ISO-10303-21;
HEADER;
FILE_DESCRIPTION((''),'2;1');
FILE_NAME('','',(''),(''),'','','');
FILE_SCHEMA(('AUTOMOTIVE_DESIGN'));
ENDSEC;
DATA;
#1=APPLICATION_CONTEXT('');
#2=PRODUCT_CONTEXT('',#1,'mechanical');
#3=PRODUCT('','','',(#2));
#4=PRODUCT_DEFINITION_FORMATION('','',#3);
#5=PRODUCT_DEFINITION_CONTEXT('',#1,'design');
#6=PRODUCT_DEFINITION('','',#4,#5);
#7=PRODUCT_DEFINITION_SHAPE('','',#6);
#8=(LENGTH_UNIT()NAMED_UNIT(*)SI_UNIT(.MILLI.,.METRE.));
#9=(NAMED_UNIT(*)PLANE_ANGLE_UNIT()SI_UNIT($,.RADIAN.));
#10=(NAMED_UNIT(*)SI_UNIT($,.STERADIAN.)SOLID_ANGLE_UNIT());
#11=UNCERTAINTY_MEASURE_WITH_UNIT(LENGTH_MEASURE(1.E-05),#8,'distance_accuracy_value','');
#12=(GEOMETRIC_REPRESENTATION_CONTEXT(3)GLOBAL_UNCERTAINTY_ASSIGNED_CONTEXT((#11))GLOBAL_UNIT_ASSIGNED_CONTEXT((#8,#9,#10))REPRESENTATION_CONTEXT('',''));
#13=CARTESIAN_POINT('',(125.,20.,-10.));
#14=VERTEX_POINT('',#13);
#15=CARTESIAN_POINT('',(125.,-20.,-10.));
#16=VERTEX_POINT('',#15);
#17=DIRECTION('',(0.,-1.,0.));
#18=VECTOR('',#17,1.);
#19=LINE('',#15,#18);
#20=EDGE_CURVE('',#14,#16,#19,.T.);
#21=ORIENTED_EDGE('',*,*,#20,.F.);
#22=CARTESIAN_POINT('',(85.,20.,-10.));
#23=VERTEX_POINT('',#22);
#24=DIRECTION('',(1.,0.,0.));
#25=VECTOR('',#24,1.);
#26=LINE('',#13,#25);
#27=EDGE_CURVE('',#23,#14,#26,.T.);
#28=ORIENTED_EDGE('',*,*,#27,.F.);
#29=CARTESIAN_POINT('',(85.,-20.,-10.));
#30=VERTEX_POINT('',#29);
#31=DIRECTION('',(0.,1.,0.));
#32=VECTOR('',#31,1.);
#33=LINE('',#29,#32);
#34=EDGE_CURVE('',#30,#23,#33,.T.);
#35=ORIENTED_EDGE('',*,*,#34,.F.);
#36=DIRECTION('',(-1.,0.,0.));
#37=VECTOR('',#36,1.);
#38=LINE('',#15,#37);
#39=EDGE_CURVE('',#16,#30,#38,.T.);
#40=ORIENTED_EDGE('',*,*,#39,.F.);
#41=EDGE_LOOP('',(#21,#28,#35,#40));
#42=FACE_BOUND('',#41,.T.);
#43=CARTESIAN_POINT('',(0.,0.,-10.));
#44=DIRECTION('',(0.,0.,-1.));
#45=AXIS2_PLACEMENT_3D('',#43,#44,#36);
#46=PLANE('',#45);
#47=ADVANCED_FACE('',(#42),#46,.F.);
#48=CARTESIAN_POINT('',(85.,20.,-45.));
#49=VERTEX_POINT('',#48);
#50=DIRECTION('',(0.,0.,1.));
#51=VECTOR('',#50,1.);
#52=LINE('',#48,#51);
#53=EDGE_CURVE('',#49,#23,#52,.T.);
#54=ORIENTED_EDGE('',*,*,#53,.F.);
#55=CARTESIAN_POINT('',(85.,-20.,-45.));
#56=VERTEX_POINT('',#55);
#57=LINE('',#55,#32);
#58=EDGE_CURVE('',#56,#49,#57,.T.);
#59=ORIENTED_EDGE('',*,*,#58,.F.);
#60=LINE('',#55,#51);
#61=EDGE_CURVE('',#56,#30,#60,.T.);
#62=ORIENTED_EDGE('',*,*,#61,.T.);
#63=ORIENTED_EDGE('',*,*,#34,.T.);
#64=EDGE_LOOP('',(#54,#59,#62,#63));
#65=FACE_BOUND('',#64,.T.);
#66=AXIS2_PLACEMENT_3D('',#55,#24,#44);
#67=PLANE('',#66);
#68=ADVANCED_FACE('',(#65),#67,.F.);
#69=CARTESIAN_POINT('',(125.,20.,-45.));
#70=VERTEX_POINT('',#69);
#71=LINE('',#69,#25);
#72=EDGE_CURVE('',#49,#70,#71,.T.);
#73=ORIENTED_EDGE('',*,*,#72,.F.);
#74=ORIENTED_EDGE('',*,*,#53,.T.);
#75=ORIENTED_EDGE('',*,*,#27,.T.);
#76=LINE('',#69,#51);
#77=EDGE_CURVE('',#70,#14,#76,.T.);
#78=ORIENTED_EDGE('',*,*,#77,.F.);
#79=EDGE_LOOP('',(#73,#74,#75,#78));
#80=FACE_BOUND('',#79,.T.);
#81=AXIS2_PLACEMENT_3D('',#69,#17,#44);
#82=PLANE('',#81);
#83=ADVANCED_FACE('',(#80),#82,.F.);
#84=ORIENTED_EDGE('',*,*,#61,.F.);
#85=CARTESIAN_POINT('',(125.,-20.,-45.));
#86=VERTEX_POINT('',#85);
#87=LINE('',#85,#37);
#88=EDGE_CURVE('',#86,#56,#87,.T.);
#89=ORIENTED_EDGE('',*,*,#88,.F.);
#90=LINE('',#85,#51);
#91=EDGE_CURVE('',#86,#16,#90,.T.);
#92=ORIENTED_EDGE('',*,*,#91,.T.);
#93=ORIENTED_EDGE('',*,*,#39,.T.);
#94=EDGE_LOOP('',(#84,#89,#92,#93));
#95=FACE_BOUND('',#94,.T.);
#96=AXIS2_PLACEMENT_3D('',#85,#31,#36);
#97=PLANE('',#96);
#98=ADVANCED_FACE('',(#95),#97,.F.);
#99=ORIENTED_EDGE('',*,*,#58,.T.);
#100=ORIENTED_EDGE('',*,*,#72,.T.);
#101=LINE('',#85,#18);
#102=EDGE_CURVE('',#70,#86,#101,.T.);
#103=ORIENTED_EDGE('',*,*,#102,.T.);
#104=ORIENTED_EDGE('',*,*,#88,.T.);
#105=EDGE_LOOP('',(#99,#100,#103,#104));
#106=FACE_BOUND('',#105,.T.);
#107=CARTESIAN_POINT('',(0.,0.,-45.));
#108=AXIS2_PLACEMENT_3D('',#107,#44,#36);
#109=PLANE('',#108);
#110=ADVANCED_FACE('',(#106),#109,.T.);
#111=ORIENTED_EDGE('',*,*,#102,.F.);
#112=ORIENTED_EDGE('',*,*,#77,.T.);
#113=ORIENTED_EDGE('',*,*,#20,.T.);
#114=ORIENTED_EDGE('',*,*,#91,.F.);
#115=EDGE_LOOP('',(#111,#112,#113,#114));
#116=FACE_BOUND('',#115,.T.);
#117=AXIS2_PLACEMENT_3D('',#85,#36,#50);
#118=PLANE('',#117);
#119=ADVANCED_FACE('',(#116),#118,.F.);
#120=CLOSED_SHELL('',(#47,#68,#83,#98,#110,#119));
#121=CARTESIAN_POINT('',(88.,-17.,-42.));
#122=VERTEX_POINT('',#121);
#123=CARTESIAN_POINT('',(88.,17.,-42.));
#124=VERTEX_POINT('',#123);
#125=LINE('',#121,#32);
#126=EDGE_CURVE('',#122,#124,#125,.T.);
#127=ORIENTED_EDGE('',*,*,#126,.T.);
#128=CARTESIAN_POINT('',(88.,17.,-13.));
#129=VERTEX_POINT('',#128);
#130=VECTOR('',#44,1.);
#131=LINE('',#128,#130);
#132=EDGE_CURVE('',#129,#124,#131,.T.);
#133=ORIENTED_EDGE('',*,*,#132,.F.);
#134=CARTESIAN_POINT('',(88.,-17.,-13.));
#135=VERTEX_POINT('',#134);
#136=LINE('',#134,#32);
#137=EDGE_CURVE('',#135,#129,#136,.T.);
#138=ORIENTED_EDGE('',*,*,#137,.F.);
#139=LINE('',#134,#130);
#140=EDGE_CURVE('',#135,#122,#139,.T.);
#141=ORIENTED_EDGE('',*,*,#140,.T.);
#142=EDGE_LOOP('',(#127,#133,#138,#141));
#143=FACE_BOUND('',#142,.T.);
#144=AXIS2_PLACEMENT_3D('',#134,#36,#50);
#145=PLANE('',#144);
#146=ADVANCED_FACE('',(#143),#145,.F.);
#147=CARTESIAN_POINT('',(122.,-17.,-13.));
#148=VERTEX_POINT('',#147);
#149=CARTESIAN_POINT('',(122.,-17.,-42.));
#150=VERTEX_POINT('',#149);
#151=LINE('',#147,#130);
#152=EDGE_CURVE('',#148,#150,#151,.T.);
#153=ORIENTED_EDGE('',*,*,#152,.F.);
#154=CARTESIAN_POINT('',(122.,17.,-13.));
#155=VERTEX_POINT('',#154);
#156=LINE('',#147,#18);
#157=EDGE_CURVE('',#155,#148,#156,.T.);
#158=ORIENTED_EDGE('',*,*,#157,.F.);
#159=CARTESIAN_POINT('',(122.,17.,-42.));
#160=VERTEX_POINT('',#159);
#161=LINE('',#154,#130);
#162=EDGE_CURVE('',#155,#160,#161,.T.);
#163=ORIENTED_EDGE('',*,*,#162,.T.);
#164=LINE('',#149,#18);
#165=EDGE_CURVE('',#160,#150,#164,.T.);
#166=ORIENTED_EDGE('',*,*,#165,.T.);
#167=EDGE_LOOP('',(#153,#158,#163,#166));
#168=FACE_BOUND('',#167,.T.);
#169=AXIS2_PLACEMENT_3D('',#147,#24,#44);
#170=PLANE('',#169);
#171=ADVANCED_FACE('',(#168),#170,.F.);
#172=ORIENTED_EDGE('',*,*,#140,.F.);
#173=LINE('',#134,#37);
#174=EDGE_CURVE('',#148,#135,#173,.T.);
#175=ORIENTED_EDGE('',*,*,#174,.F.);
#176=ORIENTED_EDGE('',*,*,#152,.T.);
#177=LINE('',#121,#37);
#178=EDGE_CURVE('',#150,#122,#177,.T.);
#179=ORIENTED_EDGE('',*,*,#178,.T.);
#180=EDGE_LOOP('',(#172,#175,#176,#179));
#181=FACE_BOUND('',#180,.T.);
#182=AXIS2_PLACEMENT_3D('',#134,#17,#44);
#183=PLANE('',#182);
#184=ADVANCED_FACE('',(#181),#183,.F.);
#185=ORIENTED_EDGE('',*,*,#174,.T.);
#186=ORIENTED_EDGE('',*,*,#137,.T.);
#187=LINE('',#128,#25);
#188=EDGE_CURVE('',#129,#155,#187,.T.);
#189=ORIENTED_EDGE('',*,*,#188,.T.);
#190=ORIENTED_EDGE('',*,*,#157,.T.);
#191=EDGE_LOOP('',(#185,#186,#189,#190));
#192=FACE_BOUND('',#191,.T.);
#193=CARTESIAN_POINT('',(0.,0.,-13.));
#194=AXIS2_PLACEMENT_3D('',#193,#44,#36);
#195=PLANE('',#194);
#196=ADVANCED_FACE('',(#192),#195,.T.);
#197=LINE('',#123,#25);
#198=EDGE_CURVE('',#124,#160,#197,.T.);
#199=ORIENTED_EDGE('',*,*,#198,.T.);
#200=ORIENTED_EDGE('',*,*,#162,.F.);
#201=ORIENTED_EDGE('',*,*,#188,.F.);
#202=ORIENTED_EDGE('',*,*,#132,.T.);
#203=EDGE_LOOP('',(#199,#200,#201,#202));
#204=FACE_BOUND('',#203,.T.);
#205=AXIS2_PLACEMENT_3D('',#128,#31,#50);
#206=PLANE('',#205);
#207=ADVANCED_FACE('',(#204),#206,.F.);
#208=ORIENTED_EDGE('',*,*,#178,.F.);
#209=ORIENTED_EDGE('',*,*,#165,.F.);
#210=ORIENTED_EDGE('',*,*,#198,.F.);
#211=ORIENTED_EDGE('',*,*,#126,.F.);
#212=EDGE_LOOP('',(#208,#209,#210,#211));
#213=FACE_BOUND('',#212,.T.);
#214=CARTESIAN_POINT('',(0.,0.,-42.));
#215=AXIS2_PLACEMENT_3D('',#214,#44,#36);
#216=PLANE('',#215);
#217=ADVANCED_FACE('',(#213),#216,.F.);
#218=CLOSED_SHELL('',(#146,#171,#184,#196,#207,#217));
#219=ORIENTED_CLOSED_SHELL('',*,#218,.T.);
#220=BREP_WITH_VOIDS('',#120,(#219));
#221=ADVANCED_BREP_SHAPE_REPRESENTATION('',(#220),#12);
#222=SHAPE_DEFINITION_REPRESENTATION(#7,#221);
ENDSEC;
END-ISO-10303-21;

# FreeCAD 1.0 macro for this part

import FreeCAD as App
import Part
import Sketcher
Q = App.Units.Quantity


def add_polygon(sketch, points):
    """Adds a closed chain of lines whose ends are joined by coincident constraints."""
    first, n = sketch.GeometryCount, len(points)
    for a, b in zip(points, points[1:] + points[:1]):
        sketch.addGeometry(Part.LineSegment(App.Vector(*a, 0), App.Vector(*b, 0)), False)
    for i in range(n):
        sketch.addConstraint(Sketcher.Constraint("Coincident", first + i, 2, first + (i + 1) % n, 1))

doc = App.newDocument("Part")
body = doc.addObject("PartDesign::Body", "Body")

sketch1 = doc.addObject("Sketcher::SketchObject", "Sketch")
body.addObject(sketch1)
sketch1.AttachmentSupport = (doc.XY_Plane, [""])
sketch1.MapMode = "FlatFace"
sketch1.AttachmentOffset = App.Placement(App.Vector(0, 0, -10), App.Rotation())
add_polygon(sketch1, [(125, 20), (125, -20), (85, -20), (85, 20)])
sketch1.addConstraint([
    Sketcher.Constraint("Vertical", 0),
    Sketcher.Constraint("Horizontal", 1),
    Sketcher.Constraint("Vertical", 2),
    Sketcher.Constraint("Horizontal", 3),
    Sketcher.Constraint("Equal", 3, 0),
    Sketcher.Constraint("DistanceX", 1, 2, 1, 1, Q("40 mm")),
    Sketcher.Constraint("DistanceX", -1, 1, 0, 2, Q("125 mm")),
    Sketcher.Constraint("DistanceY", 0, 2, -1, 1, Q("20 mm")),
])
pad1 = doc.addObject("PartDesign::Pad", "Pad")
body.addObject(pad1)
pad1.Profile = sketch1
pad1.Length = 35
pad1.Reversed = True

sketch2 = doc.addObject("Sketcher::SketchObject", "Sketch001")
body.addObject(sketch2)
sketch2.AttachmentSupport = (doc.XY_Plane, [""])
sketch2.MapMode = "FlatFace"
sketch2.AttachmentOffset = App.Placement(App.Vector(0, 0, -42), App.Rotation())
add_polygon(sketch2, [(122, 17), (122, -17), (88, -17), (88, 17)])
sketch2.addConstraint([
    Sketcher.Constraint("Vertical", 0),
    Sketcher.Constraint("Horizontal", 1),
    Sketcher.Constraint("Vertical", 2),
    Sketcher.Constraint("Horizontal", 3),
    Sketcher.Constraint("Equal", 3, 0),
    Sketcher.Constraint("DistanceX", 1, 2, 1, 1, Q("34 mm")),
    Sketcher.Constraint("DistanceX", -1, 1, 0, 2, Q("122 mm")),
    Sketcher.Constraint("DistanceY", 0, 2, -1, 1, Q("17 mm")),
])
pocket1 = doc.addObject("PartDesign::Pocket", "Pocket")
body.addObject(pocket1)
pocket1.Profile = sketch2
pocket1.Length = 29
pocket1.Reversed = True

doc.recompute()
